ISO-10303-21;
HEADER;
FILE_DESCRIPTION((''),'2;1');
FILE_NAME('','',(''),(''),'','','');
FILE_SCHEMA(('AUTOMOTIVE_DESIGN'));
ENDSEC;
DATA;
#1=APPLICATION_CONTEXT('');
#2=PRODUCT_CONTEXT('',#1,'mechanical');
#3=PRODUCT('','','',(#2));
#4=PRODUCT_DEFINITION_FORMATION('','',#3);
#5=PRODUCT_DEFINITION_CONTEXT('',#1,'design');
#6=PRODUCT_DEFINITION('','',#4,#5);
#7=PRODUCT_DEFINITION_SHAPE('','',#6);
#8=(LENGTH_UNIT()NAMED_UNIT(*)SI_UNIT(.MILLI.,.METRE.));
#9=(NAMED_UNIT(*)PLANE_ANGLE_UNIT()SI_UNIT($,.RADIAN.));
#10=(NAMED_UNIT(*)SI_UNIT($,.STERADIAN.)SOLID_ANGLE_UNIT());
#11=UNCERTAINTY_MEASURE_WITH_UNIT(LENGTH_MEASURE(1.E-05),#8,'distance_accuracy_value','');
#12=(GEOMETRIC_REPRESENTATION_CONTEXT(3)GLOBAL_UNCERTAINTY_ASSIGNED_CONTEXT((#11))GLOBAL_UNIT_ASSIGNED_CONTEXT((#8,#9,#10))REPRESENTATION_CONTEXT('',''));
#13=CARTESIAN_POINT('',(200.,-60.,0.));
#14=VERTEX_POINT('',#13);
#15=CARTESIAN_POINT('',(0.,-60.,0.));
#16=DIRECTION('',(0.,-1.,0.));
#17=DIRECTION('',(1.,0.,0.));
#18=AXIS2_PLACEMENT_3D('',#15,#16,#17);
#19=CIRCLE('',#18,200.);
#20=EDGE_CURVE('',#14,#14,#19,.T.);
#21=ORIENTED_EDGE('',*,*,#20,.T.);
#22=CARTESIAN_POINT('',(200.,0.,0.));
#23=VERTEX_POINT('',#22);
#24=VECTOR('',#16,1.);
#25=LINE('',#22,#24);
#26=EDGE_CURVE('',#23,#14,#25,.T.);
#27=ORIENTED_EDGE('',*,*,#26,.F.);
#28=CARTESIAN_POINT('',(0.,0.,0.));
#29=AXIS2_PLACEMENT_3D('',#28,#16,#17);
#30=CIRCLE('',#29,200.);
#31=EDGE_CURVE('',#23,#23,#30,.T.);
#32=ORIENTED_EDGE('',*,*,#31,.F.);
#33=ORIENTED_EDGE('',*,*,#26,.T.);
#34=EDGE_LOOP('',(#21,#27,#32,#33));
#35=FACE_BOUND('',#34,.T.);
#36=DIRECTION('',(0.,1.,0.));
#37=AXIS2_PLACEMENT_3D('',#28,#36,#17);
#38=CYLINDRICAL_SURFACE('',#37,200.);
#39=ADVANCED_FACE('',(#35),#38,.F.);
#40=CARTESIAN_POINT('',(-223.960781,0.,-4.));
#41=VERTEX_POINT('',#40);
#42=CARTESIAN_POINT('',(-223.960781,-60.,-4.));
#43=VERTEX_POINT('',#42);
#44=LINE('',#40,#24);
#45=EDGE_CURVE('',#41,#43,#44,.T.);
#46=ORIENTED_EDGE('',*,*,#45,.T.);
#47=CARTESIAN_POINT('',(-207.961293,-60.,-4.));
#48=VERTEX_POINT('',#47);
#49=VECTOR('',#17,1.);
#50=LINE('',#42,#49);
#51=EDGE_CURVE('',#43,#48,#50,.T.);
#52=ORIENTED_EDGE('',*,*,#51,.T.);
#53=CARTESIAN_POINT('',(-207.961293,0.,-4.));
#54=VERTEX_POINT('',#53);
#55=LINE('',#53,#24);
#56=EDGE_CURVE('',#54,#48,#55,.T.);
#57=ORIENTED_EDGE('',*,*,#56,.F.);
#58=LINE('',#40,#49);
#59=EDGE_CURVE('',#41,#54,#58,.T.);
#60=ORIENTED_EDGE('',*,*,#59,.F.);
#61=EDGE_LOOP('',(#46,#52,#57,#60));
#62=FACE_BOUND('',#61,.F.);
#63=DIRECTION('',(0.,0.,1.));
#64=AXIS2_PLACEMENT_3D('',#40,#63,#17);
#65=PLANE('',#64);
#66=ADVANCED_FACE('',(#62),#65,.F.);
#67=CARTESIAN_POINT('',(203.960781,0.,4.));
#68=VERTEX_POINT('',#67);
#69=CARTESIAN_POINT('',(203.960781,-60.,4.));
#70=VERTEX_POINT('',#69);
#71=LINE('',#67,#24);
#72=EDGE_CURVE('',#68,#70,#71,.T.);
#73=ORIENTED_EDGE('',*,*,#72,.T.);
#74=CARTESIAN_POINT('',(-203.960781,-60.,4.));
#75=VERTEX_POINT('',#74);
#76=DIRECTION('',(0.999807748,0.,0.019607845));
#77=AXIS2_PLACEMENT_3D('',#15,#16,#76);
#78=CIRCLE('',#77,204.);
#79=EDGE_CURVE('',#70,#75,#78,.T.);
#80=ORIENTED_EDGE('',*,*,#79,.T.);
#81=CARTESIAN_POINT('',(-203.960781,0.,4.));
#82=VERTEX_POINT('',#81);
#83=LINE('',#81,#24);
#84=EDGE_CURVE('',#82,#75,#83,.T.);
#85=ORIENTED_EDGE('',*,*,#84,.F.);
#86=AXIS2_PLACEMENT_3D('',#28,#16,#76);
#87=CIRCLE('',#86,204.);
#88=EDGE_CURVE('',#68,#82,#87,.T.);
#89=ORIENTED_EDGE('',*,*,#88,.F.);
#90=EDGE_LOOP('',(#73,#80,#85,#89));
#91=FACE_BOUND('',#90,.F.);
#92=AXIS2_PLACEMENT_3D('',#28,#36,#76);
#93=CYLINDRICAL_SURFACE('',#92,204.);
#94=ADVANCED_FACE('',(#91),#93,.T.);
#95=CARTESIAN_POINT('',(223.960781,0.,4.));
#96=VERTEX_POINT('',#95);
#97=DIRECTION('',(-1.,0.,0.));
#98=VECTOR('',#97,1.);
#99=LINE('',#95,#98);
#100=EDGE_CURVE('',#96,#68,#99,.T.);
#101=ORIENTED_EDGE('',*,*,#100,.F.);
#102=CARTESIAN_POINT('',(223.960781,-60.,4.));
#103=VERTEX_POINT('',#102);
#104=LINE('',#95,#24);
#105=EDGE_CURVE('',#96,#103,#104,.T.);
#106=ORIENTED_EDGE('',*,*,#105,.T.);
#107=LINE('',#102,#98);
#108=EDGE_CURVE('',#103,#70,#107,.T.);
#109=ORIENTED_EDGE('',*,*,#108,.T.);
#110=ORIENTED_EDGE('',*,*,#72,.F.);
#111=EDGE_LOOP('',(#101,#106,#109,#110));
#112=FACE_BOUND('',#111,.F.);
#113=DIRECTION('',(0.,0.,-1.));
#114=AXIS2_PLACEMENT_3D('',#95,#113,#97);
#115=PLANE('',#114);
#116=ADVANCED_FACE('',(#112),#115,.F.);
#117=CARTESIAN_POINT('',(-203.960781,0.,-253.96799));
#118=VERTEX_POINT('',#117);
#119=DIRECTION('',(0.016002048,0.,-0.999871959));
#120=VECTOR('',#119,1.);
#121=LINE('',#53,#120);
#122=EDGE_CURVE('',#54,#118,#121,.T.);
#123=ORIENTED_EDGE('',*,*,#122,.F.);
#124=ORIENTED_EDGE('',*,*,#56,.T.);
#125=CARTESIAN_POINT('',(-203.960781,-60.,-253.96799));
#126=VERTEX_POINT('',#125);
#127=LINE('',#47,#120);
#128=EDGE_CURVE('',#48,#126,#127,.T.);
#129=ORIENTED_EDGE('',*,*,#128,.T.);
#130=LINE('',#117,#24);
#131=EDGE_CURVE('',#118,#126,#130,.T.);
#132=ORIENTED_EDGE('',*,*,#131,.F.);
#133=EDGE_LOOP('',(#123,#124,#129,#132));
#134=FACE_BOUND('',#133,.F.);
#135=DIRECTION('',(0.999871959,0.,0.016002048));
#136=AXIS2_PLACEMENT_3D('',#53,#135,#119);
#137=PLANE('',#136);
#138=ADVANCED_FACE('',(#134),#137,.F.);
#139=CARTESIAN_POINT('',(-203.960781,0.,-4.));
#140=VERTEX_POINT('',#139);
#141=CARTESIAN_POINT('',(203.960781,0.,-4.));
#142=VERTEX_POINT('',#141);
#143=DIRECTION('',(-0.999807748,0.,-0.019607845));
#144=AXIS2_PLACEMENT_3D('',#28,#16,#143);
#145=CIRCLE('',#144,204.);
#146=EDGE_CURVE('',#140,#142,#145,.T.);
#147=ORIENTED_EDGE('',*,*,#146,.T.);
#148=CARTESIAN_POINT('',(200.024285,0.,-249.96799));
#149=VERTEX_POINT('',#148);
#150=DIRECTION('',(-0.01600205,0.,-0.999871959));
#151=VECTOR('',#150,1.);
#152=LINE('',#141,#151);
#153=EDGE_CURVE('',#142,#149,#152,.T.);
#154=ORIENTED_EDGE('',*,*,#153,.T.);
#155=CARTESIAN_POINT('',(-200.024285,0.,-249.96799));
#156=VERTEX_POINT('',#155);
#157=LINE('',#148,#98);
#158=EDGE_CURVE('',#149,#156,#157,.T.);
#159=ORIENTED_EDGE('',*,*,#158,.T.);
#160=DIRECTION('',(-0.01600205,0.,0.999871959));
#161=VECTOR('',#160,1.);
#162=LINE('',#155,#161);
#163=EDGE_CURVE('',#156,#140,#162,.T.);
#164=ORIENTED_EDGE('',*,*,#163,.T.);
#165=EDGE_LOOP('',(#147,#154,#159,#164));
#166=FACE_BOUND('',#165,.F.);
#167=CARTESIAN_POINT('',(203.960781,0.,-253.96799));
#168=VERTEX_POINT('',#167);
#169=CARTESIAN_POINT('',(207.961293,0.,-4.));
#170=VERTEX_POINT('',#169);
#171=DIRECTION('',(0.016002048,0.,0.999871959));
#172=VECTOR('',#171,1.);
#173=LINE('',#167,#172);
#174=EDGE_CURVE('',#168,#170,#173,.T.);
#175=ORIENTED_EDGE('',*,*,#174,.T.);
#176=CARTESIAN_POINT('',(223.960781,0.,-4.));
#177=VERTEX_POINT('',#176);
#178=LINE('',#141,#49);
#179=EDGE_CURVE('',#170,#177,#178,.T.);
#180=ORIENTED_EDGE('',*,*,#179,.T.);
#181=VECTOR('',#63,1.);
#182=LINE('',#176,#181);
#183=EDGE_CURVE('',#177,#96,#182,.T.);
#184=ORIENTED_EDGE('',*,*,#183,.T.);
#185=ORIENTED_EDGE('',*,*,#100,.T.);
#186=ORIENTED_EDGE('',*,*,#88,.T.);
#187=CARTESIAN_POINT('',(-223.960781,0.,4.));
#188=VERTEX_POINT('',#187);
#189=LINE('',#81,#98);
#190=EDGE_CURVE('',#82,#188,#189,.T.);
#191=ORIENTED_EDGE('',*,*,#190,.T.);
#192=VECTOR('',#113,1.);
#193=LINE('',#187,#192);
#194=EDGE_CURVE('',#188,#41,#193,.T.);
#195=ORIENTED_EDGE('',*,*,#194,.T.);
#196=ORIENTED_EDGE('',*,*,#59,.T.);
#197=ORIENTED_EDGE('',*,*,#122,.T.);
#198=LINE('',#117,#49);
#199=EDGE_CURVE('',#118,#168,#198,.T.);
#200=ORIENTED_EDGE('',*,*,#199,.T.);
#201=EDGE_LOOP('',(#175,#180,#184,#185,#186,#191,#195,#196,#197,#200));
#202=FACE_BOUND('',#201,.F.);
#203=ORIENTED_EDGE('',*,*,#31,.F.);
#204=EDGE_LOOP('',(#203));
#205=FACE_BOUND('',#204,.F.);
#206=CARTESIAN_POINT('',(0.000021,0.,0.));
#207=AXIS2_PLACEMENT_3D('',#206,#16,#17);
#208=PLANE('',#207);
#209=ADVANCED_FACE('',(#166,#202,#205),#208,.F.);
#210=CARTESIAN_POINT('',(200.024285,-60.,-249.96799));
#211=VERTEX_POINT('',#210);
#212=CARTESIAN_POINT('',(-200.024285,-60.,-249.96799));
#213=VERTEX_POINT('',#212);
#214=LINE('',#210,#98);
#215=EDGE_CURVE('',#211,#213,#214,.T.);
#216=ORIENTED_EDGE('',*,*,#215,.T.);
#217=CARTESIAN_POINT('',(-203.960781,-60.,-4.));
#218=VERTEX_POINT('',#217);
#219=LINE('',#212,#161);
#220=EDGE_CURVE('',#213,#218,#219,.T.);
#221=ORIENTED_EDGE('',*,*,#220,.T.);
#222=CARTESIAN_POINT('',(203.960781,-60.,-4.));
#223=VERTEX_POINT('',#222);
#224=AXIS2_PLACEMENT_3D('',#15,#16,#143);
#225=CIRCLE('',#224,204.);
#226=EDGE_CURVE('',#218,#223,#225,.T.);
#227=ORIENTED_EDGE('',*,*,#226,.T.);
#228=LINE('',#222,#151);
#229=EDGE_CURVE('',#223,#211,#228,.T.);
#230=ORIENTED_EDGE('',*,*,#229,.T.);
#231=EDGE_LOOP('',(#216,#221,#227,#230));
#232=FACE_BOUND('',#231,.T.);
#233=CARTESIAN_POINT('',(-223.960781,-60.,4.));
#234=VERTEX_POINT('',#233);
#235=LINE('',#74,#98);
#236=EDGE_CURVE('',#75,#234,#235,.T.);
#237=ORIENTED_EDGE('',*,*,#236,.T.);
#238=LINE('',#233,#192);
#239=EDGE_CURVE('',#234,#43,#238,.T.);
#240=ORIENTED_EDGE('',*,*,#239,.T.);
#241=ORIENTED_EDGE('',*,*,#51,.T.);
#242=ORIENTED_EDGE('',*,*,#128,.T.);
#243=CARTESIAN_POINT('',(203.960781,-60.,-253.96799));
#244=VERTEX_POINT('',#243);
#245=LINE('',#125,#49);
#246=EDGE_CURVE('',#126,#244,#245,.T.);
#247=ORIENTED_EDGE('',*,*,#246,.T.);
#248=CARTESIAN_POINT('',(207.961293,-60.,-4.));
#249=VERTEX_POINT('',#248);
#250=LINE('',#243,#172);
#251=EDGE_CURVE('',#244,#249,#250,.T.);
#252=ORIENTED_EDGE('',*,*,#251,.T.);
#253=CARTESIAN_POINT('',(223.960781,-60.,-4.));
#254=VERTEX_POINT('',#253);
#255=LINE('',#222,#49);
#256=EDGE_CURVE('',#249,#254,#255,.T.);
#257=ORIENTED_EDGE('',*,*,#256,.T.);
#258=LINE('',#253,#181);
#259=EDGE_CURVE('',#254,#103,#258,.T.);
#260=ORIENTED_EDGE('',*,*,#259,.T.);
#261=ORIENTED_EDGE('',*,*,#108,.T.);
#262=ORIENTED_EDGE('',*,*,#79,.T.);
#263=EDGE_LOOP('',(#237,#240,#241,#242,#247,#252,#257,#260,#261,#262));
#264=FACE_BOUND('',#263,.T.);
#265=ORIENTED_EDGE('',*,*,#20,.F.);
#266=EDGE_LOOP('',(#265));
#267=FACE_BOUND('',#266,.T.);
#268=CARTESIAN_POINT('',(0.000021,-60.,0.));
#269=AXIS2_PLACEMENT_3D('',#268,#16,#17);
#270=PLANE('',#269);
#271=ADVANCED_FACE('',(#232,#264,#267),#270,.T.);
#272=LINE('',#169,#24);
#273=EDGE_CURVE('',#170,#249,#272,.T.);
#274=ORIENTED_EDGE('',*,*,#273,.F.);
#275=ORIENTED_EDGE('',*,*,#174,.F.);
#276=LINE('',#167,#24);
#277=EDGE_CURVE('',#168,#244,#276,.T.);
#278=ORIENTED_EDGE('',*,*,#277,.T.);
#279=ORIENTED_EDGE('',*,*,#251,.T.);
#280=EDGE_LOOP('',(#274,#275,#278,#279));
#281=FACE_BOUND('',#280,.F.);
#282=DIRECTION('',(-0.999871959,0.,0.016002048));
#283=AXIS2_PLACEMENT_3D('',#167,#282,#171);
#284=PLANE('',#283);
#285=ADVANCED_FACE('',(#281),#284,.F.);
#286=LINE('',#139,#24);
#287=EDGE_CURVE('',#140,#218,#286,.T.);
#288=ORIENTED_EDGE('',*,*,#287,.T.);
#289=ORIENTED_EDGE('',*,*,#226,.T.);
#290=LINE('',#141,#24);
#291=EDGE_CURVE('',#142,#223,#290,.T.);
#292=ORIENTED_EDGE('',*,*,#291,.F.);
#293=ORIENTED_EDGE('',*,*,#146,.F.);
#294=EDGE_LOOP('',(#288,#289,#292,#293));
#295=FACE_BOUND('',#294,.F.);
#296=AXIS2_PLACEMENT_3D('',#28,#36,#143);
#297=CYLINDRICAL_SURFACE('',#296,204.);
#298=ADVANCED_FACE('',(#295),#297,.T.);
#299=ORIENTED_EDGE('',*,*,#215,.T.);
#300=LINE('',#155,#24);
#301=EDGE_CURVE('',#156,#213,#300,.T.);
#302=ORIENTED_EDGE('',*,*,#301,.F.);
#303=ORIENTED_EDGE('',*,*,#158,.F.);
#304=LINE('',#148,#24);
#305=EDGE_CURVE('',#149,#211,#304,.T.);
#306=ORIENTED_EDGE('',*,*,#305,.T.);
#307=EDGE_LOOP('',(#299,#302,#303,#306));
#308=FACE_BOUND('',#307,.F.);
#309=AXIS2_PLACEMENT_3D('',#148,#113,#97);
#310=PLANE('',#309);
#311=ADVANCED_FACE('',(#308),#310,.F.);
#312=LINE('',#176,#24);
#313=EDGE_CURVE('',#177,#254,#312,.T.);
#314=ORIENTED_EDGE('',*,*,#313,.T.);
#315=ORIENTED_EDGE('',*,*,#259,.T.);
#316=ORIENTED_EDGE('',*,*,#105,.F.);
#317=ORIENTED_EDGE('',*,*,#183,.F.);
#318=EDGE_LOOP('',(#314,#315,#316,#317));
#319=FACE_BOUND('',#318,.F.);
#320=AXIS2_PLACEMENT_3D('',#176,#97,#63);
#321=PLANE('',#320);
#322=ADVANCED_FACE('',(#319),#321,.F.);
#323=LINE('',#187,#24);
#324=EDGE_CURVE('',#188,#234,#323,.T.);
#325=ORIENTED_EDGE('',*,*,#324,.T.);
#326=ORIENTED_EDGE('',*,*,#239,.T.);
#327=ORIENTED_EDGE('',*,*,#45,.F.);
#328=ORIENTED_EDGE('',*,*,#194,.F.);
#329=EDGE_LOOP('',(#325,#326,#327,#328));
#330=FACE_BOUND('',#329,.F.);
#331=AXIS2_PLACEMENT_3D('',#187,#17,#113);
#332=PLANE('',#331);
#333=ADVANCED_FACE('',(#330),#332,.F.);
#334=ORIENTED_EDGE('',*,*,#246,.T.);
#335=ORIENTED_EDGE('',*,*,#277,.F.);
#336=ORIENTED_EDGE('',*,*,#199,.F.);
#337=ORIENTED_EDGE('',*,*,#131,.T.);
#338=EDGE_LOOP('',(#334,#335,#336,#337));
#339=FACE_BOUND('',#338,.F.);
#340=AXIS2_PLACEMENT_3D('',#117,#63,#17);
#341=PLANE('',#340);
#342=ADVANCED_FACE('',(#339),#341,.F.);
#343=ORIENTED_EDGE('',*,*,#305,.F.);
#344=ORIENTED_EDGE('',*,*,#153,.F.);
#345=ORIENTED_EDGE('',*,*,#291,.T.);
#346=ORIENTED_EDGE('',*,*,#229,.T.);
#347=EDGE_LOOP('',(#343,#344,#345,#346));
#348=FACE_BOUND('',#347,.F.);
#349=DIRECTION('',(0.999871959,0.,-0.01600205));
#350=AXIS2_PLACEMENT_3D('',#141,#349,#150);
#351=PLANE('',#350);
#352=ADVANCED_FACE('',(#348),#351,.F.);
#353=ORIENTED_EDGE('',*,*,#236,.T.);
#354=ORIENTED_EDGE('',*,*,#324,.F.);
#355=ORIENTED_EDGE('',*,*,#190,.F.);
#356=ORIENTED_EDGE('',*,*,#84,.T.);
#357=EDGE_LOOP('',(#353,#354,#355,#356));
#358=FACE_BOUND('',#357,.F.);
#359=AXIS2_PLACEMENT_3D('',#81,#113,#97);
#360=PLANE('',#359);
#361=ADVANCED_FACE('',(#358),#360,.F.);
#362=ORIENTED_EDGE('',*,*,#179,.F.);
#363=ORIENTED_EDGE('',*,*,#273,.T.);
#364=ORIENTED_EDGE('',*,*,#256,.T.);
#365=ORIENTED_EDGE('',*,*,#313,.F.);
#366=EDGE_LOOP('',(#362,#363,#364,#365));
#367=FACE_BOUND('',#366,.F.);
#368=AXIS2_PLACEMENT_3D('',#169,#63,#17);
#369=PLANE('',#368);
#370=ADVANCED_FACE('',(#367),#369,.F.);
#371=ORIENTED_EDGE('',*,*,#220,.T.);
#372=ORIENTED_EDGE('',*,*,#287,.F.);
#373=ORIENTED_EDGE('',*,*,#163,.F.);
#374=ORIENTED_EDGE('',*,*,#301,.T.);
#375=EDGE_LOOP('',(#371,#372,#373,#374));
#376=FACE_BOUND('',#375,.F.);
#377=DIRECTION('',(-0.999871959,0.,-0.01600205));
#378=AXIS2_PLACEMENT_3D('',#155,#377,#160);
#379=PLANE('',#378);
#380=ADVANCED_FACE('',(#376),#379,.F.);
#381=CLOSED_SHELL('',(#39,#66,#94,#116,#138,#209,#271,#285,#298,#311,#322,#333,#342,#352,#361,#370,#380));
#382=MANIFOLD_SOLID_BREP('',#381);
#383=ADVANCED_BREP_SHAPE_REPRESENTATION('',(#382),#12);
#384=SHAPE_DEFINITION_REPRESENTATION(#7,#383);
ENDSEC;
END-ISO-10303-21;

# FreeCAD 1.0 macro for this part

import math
import FreeCAD as App
import Part
import Sketcher

V = App.Vector

doc = App.newDocument("Part")
body = doc.addObject("PartDesign::Body", "Body")

# Sketch on XZ plane
sketch1 = doc.addObject("Sketcher::SketchObject", "Sketch")
body.addObject(sketch1)
sketch1.AttachmentSupport = (doc.XZ_Plane, [""])
sketch1.MapMode = "FlatFace"
sketch1.addGeometry([
    Part.ArcOfCircle(Part.Circle(V(0, 0, 0), V(0, 0, 1), 204), math.radians(1), math.radians(179)),  # 0
    Part.LineSegment(V(-204, 4, 0), V(-224, 4, 0)),  # 1
    Part.LineSegment(V(-224, 4, 0), V(-224, -4, 0)),  # 2
    Part.LineSegment(V(-224, -4, 0), V(-208, -4, 0)),  # 3
    Part.LineSegment(V(-208, -4, 0), V(-204, -254, 0)),  # 4
    Part.LineSegment(V(-204, -254, 0), V(204, -254, 0)),  # 5
    Part.LineSegment(V(204, -254, 0), V(208, -4, 0)),  # 6
    Part.LineSegment(V(208, -4, 0), V(224, -4, 0)),  # 7
    Part.LineSegment(V(224, -4, 0), V(224, 4, 0)),  # 8
    Part.LineSegment(V(224, 4, 0), V(204, 4, 0)),  # 9
    Part.LineSegment(V(-200, -250, 0), V(-204, -4, 0)),  # 10
    Part.ArcOfCircle(Part.Circle(V(0, 0, 0), V(0, 0, 1), 204), math.radians(-179), math.radians(-1)),  # 11
    Part.LineSegment(V(204, -4, 0), V(200, -250, 0)),  # 12
    Part.LineSegment(V(200, -250, 0), V(-200, -250, 0)),  # 13
    Part.Circle(V(0, 0, 0), V(0, 0, 1), 200),  # 14
], False)
sketch1.addConstraint([
    Sketcher.Constraint("Coincident", 0, 2, 1, 1),
    Sketcher.Constraint("Coincident", 1, 2, 2, 1),
    Sketcher.Constraint("Coincident", 2, 2, 3, 1),
    Sketcher.Constraint("Coincident", 3, 2, 4, 1),
    Sketcher.Constraint("Coincident", 4, 2, 5, 1),
    Sketcher.Constraint("Coincident", 5, 2, 6, 1),
    Sketcher.Constraint("Coincident", 6, 2, 7, 1),
    Sketcher.Constraint("Coincident", 7, 2, 8, 1),
    Sketcher.Constraint("Coincident", 8, 2, 9, 1),
    Sketcher.Constraint("Coincident", 9, 2, 0, 1),
    Sketcher.Constraint("Coincident", 10, 2, 11, 1),
    Sketcher.Constraint("Coincident", 11, 2, 12, 1),
    Sketcher.Constraint("Coincident", 12, 2, 13, 1),
    Sketcher.Constraint("Coincident", 13, 2, 10, 1),
    Sketcher.Constraint("Horizontal", 1),
    Sketcher.Constraint("Vertical", 2),
    Sketcher.Constraint("Horizontal", 3),
    Sketcher.Constraint("Horizontal", 5),
    Sketcher.Constraint("Horizontal", 7),
    Sketcher.Constraint("Vertical", 8),
    Sketcher.Constraint("Horizontal", 9),
    Sketcher.Constraint("Horizontal", 13),
    Sketcher.Constraint("Coincident", 0, 3, -1, 1),
    Sketcher.Constraint("Coincident", 11, 3, -1, 1),
    Sketcher.Constraint("Coincident", 14, 3, -1, 1),
    Sketcher.Constraint("Equal", 0, 11),
    Sketcher.Constraint("Symmetric", 1, 2, 7, 2, -1, 1),
    Sketcher.Constraint("Symmetric", 3, 2, 6, 2, -2),
    Sketcher.Constraint("Parallel", 4, 10),
    Sketcher.Constraint("Parallel", 6, 12),
    Sketcher.Constraint("Horizontal", 1, 2, 8, 2),
    Sketcher.Constraint("Horizontal", 7, 2, 10, 2),
    Sketcher.Constraint("Horizontal", 10, 2, 11, 2),
    Sketcher.Constraint("Vertical", 0, 2, 4, 2),
    Sketcher.Constraint("Vertical", 5, 2, 9, 2),
    Sketcher.Constraint("Diameter", 14, 400.0),
    Sketcher.Constraint("Radius", 0, 204.0),
    Sketcher.Constraint("DistanceX", 1, 2, 1, 1, 20.0),
    Sketcher.Constraint("DistanceY", 2, 2, 2, 1, 8.0),
    Sketcher.Constraint("Distance", 4, 250.0),
    Sketcher.Constraint("DistanceY", 5, 2, 12, 2, 4.0),
    Sketcher.Constraint("DistanceX", 13, 2, 13, 1, 400.04857),
])
pad1 = doc.addObject("PartDesign::Pad", "Pad")
body.addObject(pad1)
pad1.Profile = sketch1
pad1.Length = 60

doc.recompute()
